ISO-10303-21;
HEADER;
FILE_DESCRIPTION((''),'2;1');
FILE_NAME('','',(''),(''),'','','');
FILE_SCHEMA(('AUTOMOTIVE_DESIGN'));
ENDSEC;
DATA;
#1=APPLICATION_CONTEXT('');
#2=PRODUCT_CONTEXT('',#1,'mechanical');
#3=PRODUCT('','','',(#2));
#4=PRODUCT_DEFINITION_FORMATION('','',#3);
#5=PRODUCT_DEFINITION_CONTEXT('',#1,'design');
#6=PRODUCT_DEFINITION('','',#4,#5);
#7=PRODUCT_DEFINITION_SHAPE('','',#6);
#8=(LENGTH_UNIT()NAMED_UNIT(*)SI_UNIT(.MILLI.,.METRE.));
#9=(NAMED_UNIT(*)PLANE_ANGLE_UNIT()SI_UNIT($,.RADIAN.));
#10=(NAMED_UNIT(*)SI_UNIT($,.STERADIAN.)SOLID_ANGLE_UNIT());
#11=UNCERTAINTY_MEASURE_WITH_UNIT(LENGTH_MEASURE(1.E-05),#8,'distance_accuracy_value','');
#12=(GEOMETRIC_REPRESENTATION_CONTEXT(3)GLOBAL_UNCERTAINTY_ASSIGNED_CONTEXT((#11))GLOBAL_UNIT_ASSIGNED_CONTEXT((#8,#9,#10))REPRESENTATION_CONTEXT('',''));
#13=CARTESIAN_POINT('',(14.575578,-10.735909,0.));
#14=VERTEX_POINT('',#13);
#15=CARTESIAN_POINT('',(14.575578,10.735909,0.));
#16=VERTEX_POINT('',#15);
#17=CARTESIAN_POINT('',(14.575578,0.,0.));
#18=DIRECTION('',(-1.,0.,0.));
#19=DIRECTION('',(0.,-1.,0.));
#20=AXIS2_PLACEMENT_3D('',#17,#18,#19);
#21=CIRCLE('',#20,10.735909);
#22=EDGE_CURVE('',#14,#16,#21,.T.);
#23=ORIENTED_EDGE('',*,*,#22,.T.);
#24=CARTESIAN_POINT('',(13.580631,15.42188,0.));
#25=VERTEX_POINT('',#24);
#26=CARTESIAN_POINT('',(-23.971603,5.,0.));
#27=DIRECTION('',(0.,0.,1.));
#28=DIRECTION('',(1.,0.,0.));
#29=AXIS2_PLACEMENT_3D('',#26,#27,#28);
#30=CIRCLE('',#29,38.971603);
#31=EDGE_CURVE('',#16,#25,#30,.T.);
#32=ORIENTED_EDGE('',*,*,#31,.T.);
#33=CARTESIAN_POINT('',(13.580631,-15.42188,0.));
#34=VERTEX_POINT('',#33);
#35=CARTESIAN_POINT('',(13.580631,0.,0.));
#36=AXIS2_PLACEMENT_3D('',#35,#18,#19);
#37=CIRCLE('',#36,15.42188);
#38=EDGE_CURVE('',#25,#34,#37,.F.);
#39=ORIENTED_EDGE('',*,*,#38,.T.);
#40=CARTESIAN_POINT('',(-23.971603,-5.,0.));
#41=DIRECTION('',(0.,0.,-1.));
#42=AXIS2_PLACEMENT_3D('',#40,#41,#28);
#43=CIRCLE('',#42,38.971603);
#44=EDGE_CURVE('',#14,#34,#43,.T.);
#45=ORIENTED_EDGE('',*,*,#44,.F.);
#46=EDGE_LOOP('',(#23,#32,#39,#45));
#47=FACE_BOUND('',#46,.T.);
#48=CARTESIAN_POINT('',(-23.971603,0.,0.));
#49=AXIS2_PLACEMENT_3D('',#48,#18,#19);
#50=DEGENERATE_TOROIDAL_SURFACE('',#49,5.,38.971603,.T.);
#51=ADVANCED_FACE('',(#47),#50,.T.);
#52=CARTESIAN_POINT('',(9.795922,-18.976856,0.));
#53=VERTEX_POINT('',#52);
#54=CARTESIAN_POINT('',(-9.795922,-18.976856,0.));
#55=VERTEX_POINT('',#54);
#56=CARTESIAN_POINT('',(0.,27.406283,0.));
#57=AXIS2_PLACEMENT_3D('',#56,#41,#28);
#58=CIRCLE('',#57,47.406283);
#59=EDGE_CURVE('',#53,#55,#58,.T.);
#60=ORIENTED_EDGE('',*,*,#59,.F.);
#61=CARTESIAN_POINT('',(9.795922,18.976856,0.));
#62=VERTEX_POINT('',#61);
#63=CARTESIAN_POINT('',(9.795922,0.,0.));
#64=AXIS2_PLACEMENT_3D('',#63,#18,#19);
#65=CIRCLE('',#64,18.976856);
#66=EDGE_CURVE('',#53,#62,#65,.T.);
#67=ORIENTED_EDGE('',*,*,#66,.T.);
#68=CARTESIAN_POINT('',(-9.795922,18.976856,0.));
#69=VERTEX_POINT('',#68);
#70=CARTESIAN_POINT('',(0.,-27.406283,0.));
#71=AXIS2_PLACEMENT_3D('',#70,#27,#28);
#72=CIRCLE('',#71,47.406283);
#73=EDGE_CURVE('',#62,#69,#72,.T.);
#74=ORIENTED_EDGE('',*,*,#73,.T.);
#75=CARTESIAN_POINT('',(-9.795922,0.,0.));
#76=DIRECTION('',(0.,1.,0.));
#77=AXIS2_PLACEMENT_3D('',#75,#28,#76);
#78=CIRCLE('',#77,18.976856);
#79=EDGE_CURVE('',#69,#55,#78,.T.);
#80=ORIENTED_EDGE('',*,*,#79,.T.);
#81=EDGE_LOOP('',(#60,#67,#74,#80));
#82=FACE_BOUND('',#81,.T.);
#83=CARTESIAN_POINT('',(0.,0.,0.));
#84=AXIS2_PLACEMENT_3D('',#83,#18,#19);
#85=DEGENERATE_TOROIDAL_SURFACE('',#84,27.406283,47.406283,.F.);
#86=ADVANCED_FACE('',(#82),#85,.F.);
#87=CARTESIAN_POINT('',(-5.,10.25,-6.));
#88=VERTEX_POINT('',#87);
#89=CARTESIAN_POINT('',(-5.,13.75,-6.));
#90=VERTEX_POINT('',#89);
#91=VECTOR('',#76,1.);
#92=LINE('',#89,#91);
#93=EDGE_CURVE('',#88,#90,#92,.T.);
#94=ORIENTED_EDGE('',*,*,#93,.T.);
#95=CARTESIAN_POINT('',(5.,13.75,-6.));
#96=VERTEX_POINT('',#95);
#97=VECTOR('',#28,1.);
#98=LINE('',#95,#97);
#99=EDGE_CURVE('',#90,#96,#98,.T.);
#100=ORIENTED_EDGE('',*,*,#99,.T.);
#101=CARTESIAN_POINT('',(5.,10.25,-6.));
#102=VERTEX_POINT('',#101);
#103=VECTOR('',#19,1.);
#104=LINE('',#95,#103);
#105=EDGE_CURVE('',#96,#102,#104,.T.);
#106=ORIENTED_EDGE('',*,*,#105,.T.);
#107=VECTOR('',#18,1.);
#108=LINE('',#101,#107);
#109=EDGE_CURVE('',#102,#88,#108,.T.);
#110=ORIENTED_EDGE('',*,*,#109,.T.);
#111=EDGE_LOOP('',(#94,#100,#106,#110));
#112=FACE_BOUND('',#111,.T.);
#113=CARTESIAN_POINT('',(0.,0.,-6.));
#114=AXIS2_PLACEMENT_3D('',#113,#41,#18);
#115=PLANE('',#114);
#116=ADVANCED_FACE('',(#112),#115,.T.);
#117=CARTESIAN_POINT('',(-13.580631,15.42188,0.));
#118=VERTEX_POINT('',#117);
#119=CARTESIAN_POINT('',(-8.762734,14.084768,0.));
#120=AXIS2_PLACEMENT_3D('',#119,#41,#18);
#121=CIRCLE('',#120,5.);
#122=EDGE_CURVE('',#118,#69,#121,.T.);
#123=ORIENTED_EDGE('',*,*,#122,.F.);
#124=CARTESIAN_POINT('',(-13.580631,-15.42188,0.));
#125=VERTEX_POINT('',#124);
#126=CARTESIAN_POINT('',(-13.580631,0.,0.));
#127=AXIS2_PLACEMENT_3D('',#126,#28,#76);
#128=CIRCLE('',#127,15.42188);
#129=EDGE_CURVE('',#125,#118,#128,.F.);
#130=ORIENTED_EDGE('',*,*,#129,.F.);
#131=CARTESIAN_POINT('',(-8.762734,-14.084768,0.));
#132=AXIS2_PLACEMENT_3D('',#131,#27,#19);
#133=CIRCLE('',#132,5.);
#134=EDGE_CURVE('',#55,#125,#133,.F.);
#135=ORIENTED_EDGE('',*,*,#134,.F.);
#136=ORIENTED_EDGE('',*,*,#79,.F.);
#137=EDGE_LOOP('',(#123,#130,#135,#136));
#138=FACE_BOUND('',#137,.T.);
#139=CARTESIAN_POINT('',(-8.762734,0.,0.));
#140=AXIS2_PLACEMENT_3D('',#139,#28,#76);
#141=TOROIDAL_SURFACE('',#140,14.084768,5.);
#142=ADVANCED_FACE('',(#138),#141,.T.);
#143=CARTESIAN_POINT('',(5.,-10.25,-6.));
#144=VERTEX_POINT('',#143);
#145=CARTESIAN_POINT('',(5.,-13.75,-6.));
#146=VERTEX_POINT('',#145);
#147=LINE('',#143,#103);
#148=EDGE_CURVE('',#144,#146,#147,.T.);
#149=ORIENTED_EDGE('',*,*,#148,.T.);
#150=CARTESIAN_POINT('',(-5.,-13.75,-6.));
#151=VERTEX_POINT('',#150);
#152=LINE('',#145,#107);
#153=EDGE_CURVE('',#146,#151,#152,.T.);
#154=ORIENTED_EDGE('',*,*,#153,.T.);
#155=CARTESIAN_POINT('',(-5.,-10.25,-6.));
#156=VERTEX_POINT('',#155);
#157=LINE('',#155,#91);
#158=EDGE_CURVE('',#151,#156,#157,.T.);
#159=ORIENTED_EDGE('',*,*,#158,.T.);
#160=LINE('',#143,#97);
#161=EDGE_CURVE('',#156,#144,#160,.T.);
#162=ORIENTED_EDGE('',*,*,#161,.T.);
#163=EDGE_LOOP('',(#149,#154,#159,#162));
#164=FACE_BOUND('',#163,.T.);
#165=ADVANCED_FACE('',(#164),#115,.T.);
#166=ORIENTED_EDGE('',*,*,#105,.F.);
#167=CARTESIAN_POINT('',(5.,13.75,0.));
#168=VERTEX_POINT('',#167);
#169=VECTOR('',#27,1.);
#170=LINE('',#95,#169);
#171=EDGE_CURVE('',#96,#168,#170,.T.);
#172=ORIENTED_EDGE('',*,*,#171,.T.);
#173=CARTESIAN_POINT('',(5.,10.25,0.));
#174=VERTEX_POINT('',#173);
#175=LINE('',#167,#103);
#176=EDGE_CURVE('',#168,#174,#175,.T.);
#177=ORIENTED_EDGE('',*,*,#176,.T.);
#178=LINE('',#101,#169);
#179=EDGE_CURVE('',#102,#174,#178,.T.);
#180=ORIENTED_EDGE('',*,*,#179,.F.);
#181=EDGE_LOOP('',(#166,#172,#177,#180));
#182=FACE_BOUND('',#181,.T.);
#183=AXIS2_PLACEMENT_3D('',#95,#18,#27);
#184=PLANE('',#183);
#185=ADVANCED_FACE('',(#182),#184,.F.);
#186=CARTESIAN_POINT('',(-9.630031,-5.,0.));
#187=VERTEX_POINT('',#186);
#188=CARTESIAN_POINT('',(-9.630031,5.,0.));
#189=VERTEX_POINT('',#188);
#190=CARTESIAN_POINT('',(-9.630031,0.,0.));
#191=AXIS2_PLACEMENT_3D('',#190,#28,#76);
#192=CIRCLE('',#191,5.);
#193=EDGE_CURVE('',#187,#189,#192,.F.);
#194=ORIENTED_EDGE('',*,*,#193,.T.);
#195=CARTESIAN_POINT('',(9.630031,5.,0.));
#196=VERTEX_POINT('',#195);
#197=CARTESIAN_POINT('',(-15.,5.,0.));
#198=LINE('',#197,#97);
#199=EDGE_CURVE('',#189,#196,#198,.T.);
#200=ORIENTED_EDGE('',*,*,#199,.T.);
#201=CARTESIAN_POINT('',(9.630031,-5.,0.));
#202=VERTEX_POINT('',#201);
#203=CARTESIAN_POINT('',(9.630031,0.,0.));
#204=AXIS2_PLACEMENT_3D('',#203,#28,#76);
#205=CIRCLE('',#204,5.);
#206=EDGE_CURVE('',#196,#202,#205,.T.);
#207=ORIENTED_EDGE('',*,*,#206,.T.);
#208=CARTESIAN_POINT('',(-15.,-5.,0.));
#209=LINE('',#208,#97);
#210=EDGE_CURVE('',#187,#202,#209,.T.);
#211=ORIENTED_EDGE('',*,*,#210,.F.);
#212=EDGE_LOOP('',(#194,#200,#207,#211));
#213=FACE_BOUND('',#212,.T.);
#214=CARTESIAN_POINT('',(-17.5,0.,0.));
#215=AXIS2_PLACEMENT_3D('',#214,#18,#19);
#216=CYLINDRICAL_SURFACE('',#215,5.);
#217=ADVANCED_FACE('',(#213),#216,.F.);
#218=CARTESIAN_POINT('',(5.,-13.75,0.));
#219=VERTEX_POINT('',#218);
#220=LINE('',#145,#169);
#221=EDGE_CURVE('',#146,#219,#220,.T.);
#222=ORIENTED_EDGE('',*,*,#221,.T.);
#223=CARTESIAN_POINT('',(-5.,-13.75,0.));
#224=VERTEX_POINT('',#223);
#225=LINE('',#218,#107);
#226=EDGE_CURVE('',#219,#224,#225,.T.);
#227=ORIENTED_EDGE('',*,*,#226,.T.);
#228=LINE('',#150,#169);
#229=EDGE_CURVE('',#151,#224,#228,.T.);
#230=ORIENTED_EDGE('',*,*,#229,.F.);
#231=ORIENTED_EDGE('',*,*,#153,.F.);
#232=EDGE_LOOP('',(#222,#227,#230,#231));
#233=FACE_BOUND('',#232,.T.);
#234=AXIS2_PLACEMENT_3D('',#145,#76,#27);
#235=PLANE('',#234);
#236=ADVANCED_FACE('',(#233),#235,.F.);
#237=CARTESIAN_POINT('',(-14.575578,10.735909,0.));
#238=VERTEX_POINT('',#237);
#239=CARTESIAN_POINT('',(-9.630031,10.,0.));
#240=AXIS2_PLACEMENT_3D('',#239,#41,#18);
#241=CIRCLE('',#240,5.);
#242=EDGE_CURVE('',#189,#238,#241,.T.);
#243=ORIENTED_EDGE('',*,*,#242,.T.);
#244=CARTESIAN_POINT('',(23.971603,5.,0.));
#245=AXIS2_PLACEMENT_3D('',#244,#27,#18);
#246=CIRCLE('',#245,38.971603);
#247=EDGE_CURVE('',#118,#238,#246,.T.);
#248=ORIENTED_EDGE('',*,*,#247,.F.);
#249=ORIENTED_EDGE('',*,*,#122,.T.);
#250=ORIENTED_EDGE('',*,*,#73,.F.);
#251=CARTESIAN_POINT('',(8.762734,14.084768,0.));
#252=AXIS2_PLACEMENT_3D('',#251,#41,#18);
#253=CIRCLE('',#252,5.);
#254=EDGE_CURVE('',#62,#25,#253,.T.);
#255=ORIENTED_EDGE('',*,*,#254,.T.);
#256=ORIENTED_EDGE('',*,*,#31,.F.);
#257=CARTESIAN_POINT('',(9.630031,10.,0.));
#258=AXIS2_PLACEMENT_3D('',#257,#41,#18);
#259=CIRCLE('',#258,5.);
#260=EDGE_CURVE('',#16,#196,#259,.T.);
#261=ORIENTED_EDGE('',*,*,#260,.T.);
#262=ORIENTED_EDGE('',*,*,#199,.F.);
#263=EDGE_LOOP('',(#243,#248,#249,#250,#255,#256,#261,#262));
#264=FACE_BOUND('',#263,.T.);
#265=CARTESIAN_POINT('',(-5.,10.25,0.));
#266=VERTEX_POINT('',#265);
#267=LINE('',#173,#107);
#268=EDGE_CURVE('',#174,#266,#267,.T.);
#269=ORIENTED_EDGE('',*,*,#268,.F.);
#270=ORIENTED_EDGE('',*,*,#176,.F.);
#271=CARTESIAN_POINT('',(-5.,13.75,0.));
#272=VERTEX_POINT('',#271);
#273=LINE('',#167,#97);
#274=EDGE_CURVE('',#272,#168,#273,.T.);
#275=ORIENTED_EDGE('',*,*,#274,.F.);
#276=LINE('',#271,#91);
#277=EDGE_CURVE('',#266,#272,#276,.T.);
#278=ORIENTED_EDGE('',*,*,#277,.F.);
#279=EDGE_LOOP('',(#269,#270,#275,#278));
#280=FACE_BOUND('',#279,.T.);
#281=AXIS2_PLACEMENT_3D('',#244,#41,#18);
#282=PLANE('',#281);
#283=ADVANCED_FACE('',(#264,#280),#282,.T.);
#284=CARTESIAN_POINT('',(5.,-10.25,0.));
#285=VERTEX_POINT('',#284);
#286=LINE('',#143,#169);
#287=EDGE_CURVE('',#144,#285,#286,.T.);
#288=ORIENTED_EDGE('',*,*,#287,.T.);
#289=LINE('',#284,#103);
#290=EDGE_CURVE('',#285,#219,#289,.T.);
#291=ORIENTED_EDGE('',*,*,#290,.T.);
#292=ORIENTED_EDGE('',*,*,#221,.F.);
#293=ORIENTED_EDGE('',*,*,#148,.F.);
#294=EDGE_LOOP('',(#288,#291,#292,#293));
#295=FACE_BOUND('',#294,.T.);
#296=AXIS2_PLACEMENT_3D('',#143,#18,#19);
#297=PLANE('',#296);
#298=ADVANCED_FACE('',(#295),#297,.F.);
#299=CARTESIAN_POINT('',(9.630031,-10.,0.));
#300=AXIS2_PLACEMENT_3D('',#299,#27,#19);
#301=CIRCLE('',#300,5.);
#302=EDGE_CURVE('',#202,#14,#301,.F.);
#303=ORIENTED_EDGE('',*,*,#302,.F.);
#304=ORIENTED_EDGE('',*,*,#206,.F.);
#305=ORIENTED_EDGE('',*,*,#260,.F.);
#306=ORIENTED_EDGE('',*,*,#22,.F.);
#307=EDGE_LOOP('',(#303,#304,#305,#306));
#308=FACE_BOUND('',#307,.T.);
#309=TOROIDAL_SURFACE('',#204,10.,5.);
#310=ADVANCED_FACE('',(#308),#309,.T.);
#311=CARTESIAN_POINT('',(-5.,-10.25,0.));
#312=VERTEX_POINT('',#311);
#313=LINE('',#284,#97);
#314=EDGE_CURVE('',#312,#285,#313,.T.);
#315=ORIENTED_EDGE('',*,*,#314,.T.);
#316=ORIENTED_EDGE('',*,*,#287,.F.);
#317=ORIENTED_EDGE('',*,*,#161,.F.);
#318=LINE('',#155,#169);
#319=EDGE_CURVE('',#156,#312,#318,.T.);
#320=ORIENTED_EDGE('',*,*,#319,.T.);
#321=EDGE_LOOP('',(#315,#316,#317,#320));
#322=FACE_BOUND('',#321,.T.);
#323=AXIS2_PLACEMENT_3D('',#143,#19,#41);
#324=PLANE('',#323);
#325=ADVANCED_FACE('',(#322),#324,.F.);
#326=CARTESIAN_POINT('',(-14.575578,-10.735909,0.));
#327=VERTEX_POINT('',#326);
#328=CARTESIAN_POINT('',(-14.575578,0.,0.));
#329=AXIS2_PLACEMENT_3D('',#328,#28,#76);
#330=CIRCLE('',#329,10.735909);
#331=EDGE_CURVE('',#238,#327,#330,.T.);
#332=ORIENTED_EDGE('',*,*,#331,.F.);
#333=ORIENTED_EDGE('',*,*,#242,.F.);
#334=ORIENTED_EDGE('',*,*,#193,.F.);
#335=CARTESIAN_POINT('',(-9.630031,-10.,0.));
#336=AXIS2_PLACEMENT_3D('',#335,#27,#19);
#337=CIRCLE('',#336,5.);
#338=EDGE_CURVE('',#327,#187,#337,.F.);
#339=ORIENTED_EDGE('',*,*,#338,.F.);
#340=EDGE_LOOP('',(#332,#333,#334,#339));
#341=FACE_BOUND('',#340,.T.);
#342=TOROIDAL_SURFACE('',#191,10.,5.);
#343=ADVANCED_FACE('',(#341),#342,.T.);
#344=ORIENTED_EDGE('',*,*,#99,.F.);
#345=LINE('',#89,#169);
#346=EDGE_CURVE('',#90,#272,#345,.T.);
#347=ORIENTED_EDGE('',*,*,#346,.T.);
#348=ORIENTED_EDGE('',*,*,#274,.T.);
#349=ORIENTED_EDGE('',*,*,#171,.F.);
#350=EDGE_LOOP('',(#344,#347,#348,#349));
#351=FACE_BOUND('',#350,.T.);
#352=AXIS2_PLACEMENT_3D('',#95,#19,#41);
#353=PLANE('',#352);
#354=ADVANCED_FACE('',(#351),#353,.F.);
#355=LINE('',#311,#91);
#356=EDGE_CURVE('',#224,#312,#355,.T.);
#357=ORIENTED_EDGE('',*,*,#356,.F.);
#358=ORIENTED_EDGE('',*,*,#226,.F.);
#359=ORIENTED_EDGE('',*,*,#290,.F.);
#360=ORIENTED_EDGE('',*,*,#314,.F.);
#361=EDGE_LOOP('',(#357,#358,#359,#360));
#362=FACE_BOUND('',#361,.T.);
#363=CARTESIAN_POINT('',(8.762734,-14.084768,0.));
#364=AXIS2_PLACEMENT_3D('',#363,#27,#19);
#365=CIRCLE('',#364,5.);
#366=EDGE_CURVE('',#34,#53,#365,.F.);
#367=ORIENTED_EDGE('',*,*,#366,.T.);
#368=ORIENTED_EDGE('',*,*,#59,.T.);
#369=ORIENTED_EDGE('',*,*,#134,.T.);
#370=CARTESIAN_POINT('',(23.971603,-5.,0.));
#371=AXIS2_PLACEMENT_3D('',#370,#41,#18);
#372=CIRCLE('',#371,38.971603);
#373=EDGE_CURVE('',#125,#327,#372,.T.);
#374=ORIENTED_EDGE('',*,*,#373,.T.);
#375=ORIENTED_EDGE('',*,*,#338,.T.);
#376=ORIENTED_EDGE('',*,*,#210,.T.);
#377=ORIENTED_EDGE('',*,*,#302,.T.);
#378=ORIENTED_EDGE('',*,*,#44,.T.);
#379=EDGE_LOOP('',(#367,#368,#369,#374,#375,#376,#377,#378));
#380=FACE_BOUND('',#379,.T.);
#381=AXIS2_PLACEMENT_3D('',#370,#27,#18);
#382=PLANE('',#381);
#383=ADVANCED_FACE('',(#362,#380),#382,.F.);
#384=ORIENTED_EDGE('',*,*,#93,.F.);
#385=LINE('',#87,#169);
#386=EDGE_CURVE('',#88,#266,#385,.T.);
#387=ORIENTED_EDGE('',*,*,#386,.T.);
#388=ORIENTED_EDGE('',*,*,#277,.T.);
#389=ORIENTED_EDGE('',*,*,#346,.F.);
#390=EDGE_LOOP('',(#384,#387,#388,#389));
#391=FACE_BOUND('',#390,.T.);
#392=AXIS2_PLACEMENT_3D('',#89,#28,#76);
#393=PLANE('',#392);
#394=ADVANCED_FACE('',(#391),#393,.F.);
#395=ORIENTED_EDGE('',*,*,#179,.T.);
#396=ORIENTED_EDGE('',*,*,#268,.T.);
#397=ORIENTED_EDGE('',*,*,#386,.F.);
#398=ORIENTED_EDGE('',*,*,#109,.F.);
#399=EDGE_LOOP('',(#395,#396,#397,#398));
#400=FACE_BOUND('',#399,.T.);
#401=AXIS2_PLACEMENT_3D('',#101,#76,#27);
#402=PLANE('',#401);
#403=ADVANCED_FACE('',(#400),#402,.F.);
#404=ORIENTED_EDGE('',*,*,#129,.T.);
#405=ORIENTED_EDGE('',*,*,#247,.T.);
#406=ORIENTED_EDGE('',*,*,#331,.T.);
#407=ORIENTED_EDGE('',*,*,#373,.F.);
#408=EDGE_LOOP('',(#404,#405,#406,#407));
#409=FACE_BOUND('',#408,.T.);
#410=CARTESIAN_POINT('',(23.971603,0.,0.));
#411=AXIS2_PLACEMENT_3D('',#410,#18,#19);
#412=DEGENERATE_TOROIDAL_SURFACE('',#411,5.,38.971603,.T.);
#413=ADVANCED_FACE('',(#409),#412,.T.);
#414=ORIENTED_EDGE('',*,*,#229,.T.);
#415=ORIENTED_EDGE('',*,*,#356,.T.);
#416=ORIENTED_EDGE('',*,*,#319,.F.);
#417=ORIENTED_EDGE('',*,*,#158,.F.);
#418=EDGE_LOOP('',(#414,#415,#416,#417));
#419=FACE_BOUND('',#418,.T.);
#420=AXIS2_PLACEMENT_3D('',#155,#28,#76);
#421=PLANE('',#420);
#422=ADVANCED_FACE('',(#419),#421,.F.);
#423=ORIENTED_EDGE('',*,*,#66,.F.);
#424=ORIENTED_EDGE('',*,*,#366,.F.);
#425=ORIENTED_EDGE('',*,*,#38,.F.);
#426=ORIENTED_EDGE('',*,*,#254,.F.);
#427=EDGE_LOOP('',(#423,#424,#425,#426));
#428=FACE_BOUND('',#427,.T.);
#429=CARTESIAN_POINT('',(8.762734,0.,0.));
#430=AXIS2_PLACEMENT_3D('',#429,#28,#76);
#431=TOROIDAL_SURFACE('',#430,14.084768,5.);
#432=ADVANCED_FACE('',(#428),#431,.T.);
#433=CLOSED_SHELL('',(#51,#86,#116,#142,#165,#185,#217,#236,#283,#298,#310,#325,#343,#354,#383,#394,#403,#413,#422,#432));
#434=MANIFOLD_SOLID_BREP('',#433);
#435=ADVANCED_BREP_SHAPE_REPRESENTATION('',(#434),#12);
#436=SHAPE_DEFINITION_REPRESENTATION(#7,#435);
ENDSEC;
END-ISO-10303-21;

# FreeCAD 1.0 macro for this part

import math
import FreeCAD as App
import Part
import Sketcher
from FreeCAD import Vector


def edges_at(feature, points):
    """Names of the edges that pass closest to the given points."""
    edges = feature.Shape.Edges
    near = lambda p: min(range(len(edges)), key=lambda i: edges[i].distToShape(Part.Vertex(*p))[0])
    return sorted({f"Edge{near(p) + 1}" for p in points})

doc = App.newDocument("Part")
body = doc.addObject("PartDesign::Body", "Body")

# Sketch on XY plane
sketch1 = body.newObject("Sketcher::SketchObject", "Sketch")
sketch1.AttachmentSupport = (doc.getObject("XY_Plane"), [""])
sketch1.MapMode = "FlatFace"
sketch1.addGeometry([
    Part.LineSegment(Vector(-15, 5, 0), Vector(15, 5, 0)),
    Part.ArcOfCircle(Part.Circle(Vector(-23.971603, 5, 0), Vector(0, 0, 1), 38.971603), math.radians(0), math.radians(19.916628)),
    Part.ArcOfCircle(Part.Circle(Vector(0, -27.406283, 0), Vector(0, 0, 1), 47.406283), math.radians(74.49962), math.radians(105.50038)),
    Part.ArcOfCircle(Part.Circle(Vector(23.971603, 5, 0), Vector(0, 0, 1), 38.971603), math.radians(160.083372), math.radians(180)),
], False)
sketch1.addConstraint([
    Sketcher.Constraint("Coincident", 0, 2, 1, 1),
    Sketcher.Constraint("Coincident", 1, 2, 2, 1),
    Sketcher.Constraint("Coincident", 2, 2, 3, 1),
    Sketcher.Constraint("Coincident", 3, 2, 0, 1),
    Sketcher.Constraint("Horizontal", 0),
    Sketcher.Constraint("Equal", 1, 3),
    Sketcher.Constraint("Symmetric", 1, 3, 3, 3, -2),
    Sketcher.Constraint("PointOnObject", 2, 3, -2),
    Sketcher.Constraint("Horizontal", 3, 3, 0, 2),
    Sketcher.Constraint("DistanceX", 0, 1, 0, 2, 30.0),
    Sketcher.Constraint("DistanceY", -1, 1, 1, 3, 5.0),
    Sketcher.Constraint("Radius", 1, 38.971603),
    Sketcher.Constraint("Radius", 2, 47.406283),
    Sketcher.Constraint("DistanceX", -1, 1, 1, 2, 12.669081),
])
revolution = body.newObject("PartDesign::Revolution", "Revolution")
revolution.Profile = sketch1
revolution.ReferenceAxis = (sketch1, ["H_Axis"])
revolution.Angle = 180
doc.recompute()

fillet = body.newObject("PartDesign::Fillet", "Fillet")
fillet.Base = (revolution, edges_at(revolution, [(12.669, 0, 18.276), (-12.669, 0, 18.276)]))
fillet.Radius = 5
doc.recompute()

fillet2 = body.newObject("PartDesign::Fillet", "Fillet001")
fillet2.Base = (fillet, edges_at(fillet, [(-15, 0, 5), (15, 0, 5)]))
fillet2.Radius = 5

# Sketch on XY plane
sketch2 = body.newObject("Sketcher::SketchObject", "Sketch001")
sketch2.AttachmentSupport = (doc.getObject("XY_Plane"), [""])
sketch2.MapMode = "FlatFace"
sketch2.addGeometry([
    Part.LineSegment(Vector(5, 13.75, 0), Vector(5, 10.25, 0)),  # 0
    Part.LineSegment(Vector(5, 10.25, 0), Vector(-5, 10.25, 0)),  # 1
    Part.LineSegment(Vector(-5, 10.25, 0), Vector(-5, 13.75, 0)),  # 2
    Part.LineSegment(Vector(-5, 13.75, 0), Vector(5, 13.75, 0)),  # 3
    Part.LineSegment(Vector(5, -10.25, 0), Vector(5, -13.75, 0)),  # 4
    Part.LineSegment(Vector(5, -13.75, 0), Vector(-5, -13.75, 0)),  # 5
    Part.LineSegment(Vector(-5, -13.75, 0), Vector(-5, -10.25, 0)),  # 6
    Part.LineSegment(Vector(-5, -10.25, 0), Vector(5, -10.25, 0)),  # 7
], False)
sketch2.addConstraint([
    Sketcher.Constraint("Coincident", 0, 2, 1, 1),
    Sketcher.Constraint("Coincident", 1, 2, 2, 1),
    Sketcher.Constraint("Coincident", 2, 2, 3, 1),
    Sketcher.Constraint("Coincident", 3, 2, 0, 1),
    Sketcher.Constraint("Coincident", 4, 2, 5, 1),
    Sketcher.Constraint("Coincident", 5, 2, 6, 1),
    Sketcher.Constraint("Coincident", 6, 2, 7, 1),
    Sketcher.Constraint("Coincident", 7, 2, 4, 1),
    Sketcher.Constraint("Vertical", 0),
    Sketcher.Constraint("Horizontal", 1),
    Sketcher.Constraint("Vertical", 2),
    Sketcher.Constraint("Horizontal", 3),
    Sketcher.Constraint("Vertical", 4),
    Sketcher.Constraint("Horizontal", 5),
    Sketcher.Constraint("Vertical", 6),
    Sketcher.Constraint("Horizontal", 7),
    Sketcher.Constraint("Symmetric", 2, 2, 4, 2, -1, 1),
    Sketcher.Constraint("Symmetric", 0, 2, 6, 2, -1, 1),
    Sketcher.Constraint("Vertical", 3, 2, 4, 2),
    Sketcher.Constraint("DistanceX", 1, 2, 1, 1, 10.0),
    Sketcher.Constraint("DistanceY", 0, 2, 0, 1, 3.5),
    Sketcher.Constraint("DistanceY", 4, 2, 0, 2, 24.0),
])
pad1 = body.newObject("PartDesign::Pad", "Pad")
pad1.Profile = sketch2
pad1.Length = 6
pad1.Reversed = True

doc.recompute()
